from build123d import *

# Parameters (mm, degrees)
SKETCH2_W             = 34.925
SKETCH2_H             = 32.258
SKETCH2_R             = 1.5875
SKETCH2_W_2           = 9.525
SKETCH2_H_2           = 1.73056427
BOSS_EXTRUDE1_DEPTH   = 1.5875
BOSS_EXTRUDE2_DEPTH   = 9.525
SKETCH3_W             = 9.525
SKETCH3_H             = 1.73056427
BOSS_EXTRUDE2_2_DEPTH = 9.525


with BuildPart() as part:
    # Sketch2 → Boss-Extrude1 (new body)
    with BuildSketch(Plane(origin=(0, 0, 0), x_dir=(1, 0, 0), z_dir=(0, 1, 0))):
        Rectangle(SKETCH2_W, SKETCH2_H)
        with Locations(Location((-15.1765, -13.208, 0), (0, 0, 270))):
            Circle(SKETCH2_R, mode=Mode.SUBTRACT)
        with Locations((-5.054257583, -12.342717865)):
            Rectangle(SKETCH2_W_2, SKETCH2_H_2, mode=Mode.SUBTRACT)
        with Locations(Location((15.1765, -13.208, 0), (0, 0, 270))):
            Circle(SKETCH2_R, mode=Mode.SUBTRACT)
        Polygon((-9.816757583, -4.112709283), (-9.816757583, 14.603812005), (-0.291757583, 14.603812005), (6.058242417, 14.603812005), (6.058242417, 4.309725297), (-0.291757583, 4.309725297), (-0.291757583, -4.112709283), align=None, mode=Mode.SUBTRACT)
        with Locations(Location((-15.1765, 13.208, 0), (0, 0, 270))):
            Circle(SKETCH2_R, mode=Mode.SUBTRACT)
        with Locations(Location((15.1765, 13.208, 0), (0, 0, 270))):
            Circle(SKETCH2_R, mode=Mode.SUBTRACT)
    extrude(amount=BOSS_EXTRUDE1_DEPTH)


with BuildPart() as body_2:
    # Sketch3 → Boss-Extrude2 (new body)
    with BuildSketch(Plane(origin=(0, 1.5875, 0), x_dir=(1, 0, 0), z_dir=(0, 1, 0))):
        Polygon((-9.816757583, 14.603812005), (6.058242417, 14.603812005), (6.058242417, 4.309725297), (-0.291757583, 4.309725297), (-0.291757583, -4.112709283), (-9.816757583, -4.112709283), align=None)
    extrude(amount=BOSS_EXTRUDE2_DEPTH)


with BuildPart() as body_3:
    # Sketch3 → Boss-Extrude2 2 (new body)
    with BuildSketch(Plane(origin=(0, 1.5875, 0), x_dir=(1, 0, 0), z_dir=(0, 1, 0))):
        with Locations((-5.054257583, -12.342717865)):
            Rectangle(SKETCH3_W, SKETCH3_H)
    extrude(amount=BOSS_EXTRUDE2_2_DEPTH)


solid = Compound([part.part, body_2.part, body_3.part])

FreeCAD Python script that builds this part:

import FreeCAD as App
import Part
import Sketcher
from FreeCAD import Vector
Q = App.Units.Quantity

doc = App.newDocument("Part")
params = doc.addObject("Spreadsheet::Sheet", "Params")
for row, (alias, value) in enumerate([
    ("sketch1_diameter", "0.125 in"),
    ("sketch1_width", "0.25 in"),
    ("sketch1_height", "1.27 in"),
    ("sketch1_width2", "1.375 in"),
    ("sketch1_width3", "0.375 in"),
    ("pad1_length", "0.0625 in"),
    ("sketch2_width", "0.25 in"),
    ("sketch2_width2", "0.625 in"),
    ("pad2_length", "0.375 in"),
    ("sketch3_width", "0.375 in"),
    ("pad3_length", "0.375 in"),
], start=1):
    params.set(f"A{row}", alias)
    params.set(f"B{row}", "=" + value)
    params.setAlias(f"B{row}", alias)

body = doc.addObject("PartDesign::Body", "Body")

sketch1 = doc.addObject("Sketcher::SketchObject", "Sketch")
body.addObject(sketch1)
sketch1.AttachmentSupport = (doc.XZ_Plane, [""])
sketch1.MapMode = "FlatFace"
sketch1.addGeometry(Part.LineSegment(Vector(-17.5, -16.1, 0), Vector(-17.5, 16.1, 0)), False)
sketch1.addGeometry(Part.LineSegment(Vector(-17.5, 16.1, 0), Vector(17.5, 16.1, 0)), False)
sketch1.addGeometry(Part.LineSegment(Vector(17.5, 16.1, 0), Vector(17.5, -16.1, 0)), False)
sketch1.addGeometry(Part.LineSegment(Vector(17.5, -16.1, 0), Vector(-17.5, -16.1, 0)), False)
sketch1.addGeometry(Part.Circle(Vector(-15.2, 13.2, 0), Vector(0, 0, 1), 1.6), False)
sketch1.addGeometry(Part.LineSegment(Vector(-0.3, 13.2, 0), Vector(-9.8, 13.2, 0)), False)
sketch1.addGeometry(Part.LineSegment(Vector(-9.8, 13.2, 0), Vector(-9.8, 11.5, 0)), False)
sketch1.addGeometry(Part.LineSegment(Vector(-9.8, 11.5, 0), Vector(-0.3, 11.5, 0)), False)
sketch1.addGeometry(Part.LineSegment(Vector(-0.3, 11.5, 0), Vector(-0.3, 13.2, 0)), False)
sketch1.addGeometry(Part.Circle(Vector(15.2, 13.2, 0), Vector(0, 0, 1), 1.6), False)
sketch1.addGeometry(Part.LineSegment(Vector(-0.3, 4.1, 0), Vector(-9.8, 4.1, 0)), False)
sketch1.addGeometry(Part.LineSegment(Vector(-9.8, 4.1, 0), Vector(-9.8, -14.6, 0)), False)
sketch1.addGeometry(Part.LineSegment(Vector(-9.8, -14.6, 0), Vector(6.1, -14.6, 0)), False)
sketch1.addGeometry(Part.LineSegment(Vector(6.1, -14.6, 0), Vector(6.1, -4.3, 0)), False)
sketch1.addGeometry(Part.LineSegment(Vector(6.1, -4.3, 0), Vector(-0.3, -4.3, 0)), False)
sketch1.addGeometry(Part.LineSegment(Vector(-0.3, -4.3, 0), Vector(-0.3, 4.1, 0)), False)
sketch1.addGeometry(Part.Circle(Vector(-15.2, -13.2, 0), Vector(0, 0, 1), 1.6), False)
sketch1.addGeometry(Part.Circle(Vector(15.2, -13.2, 0), Vector(0, 0, 1), 1.6), False)
sketch1.addConstraint(Sketcher.Constraint("Coincident", 0, 2, 1, 1))
sketch1.addConstraint(Sketcher.Constraint("Coincident", 1, 2, 2, 1))
sketch1.addConstraint(Sketcher.Constraint("Coincident", 2, 2, 3, 1))
sketch1.addConstraint(Sketcher.Constraint("Coincident", 3, 2, 0, 1))
sketch1.addConstraint(Sketcher.Constraint("Coincident", 5, 2, 6, 1))
sketch1.addConstraint(Sketcher.Constraint("Coincident", 6, 2, 7, 1))
sketch1.addConstraint(Sketcher.Constraint("Coincident", 7, 2, 8, 1))
sketch1.addConstraint(Sketcher.Constraint("Coincident", 8, 2, 5, 1))
sketch1.addConstraint(Sketcher.Constraint("Coincident", 10, 2, 11, 1))
sketch1.addConstraint(Sketcher.Constraint("Coincident", 11, 2, 12, 1))
sketch1.addConstraint(Sketcher.Constraint("Coincident", 12, 2, 13, 1))
sketch1.addConstraint(Sketcher.Constraint("Coincident", 13, 2, 14, 1))
sketch1.addConstraint(Sketcher.Constraint("Coincident", 14, 2, 15, 1))
sketch1.addConstraint(Sketcher.Constraint("Coincident", 15, 2, 10, 1))
sketch1.addConstraint(Sketcher.Constraint("Vertical", 0))
sketch1.addConstraint(Sketcher.Constraint("Horizontal", 1))
sketch1.addConstraint(Sketcher.Constraint("Vertical", 2))
sketch1.addConstraint(Sketcher.Constraint("Horizontal", 3))
sketch1.addConstraint(Sketcher.Constraint("Horizontal", 5))
sketch1.addConstraint(Sketcher.Constraint("Vertical", 6))
sketch1.addConstraint(Sketcher.Constraint("Horizontal", 7))
sketch1.addConstraint(Sketcher.Constraint("Vertical", 8))
sketch1.addConstraint(Sketcher.Constraint("Horizontal", 10))
sketch1.addConstraint(Sketcher.Constraint("Vertical", 11))
sketch1.addConstraint(Sketcher.Constraint("Horizontal", 12))
sketch1.addConstraint(Sketcher.Constraint("Vertical", 13))
sketch1.addConstraint(Sketcher.Constraint("Horizontal", 14))
sketch1.addConstraint(Sketcher.Constraint("Vertical", 15))
sketch1.addConstraint(Sketcher.Constraint("Equal", 4, 9))
sketch1.addConstraint(Sketcher.Constraint("Equal", 9, 16))
sketch1.addConstraint(Sketcher.Constraint("Equal", 16, 17))
sketch1.addConstraint(Sketcher.Constraint("Symmetric", 9, 3, 16, 3, -1, 1))
sketch1.addConstraint(Sketcher.Constraint("Symmetric", 4, 3, 17, 3, -1, 1))
sketch1.addConstraint(Sketcher.Constraint("Symmetric", 0, 2, 2, 2, -1, 1))
sketch1.addConstraint(Sketcher.Constraint("Symmetric", 4, 3, 9, 3, -2))
sketch1.addConstraint(Sketcher.Constraint("Horizontal", 9, 3, 5, 2))
sketch1.addConstraint(Sketcher.Constraint("Vertical", 6, 2, 10, 2))
sketch1.addConstraint(Sketcher.Constraint("Vertical", 8, 2, 14, 2))
sketch1.addConstraint(Sketcher.Constraint("Diameter", 4, Q("0.125 in")))
sketch1.addConstraint(Sketcher.Constraint("DistanceX", 14, 2, 14, 1, Q("0.25 in")))
sketch1.addConstraint(Sketcher.Constraint("DistanceY", 0, 1, 0, 2, Q("1.27 in")))
sketch1.addConstraint(Sketcher.Constraint("DistanceX", 1, 1, 1, 2, Q("1.375 in")))
sketch1.addConstraint(Sketcher.Constraint("DistanceX", 5, 2, 5, 1, Q("0.375 in")))
sketch1.addConstraint(Sketcher.Constraint("DistanceY", -1, 1, 4, 3, Q("0.52 in")))
sketch1.addConstraint(Sketcher.Constraint("DistanceX", 0, 2, 4, 3, Q("0.09 in")))
sketch1.addConstraint(Sketcher.Constraint("DistanceY", 11, 2, 11, 1, Q("18.716521 mm")))
sketch1.addConstraint(Sketcher.Constraint("DistanceY", 6, 2, 6, 1, Q("1.730564 mm")))
sketch1.addConstraint(Sketcher.Constraint("DistanceY", 13, 1, 13, 2, Q("10.294087 mm")))
sketch1.addConstraint(Sketcher.Constraint("DistanceY", -1, 1, 10, 2, Q("4.112709 mm")))
sketch1.addConstraint(Sketcher.Constraint("DistanceX", 5, 2, -1, 1, Q("9.816758 mm")))
sketch1.setExpression("Constraints[38]", "Params.sketch1_diameter")
sketch1.setExpression("Constraints[39]", "Params.sketch1_width")
sketch1.setExpression("Constraints[40]", "Params.sketch1_height")
sketch1.setExpression("Constraints[41]", "Params.sketch1_width2")
sketch1.setExpression("Constraints[42]", "Params.sketch1_width3")
pad1 = doc.addObject("PartDesign::Pad", "Pad")
body.addObject(pad1)
pad1.Profile = sketch1
pad1.setExpression("Length", "Params.pad1_length")
pad1.Reversed = True
body2 = doc.addObject("PartDesign::Body", "Body001")

sketch2 = doc.addObject("Sketcher::SketchObject", "Sketch001")
body2.addObject(sketch2)
sketch2.AttachmentSupport = (doc.getObject("XZ_Plane001"), [""])
sketch2.MapMode = "FlatFace"
sketch2.AttachmentOffset = App.Placement(Vector(0, 0, -0.0625 * 25.4), App.Rotation())
sketch2.addGeometry(Part.LineSegment(Vector(6, -15, 0), Vector(-10, -15, 0)), False)
sketch2.addGeometry(Part.LineSegment(Vector(-10, -15, 0), Vector(-10, 4, 0)), False)
sketch2.addGeometry(Part.LineSegment(Vector(-10, 4, 0), Vector(0, 4, 0)), False)
sketch2.addGeometry(Part.LineSegment(Vector(0, 4, 0), Vector(0, -4, 0)), False)
sketch2.addGeometry(Part.LineSegment(Vector(0, -4, 0), Vector(6, -4, 0)), False)
sketch2.addGeometry(Part.LineSegment(Vector(6, -4, 0), Vector(6, -15, 0)), False)
sketch2.addConstraint(Sketcher.Constraint("Coincident", 0, 2, 1, 1))
sketch2.addConstraint(Sketcher.Constraint("Coincident", 1, 2, 2, 1))
sketch2.addConstraint(Sketcher.Constraint("Coincident", 2, 2, 3, 1))
sketch2.addConstraint(Sketcher.Constraint("Coincident", 3, 2, 4, 1))
sketch2.addConstraint(Sketcher.Constraint("Coincident", 4, 2, 5, 1))
sketch2.addConstraint(Sketcher.Constraint("Coincident", 5, 2, 0, 1))
sketch2.addConstraint(Sketcher.Constraint("Horizontal", 0))
sketch2.addConstraint(Sketcher.Constraint("Vertical", 1))
sketch2.addConstraint(Sketcher.Constraint("Horizontal", 2))
sketch2.addConstraint(Sketcher.Constraint("Vertical", 3))
sketch2.addConstraint(Sketcher.Constraint("Horizontal", 4))
sketch2.addConstraint(Sketcher.Constraint("Vertical", 5))
sketch2.addConstraint(Sketcher.Constraint("DistanceX", 4, 1, 4, 2, Q("0.25 in")))
sketch2.addConstraint(Sketcher.Constraint("DistanceX", 0, 2, 0, 1, Q("0.625 in")))
sketch2.addConstraint(Sketcher.Constraint("DistanceY", 1, 1, 1, 2, Q("18.716521 mm")))
sketch2.addConstraint(Sketcher.Constraint("DistanceY", 3, 2, 3, 1, Q("8.422435 mm")))
sketch2.addConstraint(Sketcher.Constraint("DistanceY", -1, 1, 1, 2, Q("4.112709 mm")))
sketch2.addConstraint(Sketcher.Constraint("DistanceX", 0, 2, -1, 1, Q("9.816758 mm")))
sketch2.setExpression("Constraints[12]", "Params.sketch2_width")
sketch2.setExpression("Constraints[13]", "Params.sketch2_width2")
pad2 = doc.addObject("PartDesign::Pad", "Pad001")
body2.addObject(pad2)
pad2.Profile = sketch2
pad2.setExpression("Length", "Params.pad2_length")
pad2.Reversed = True
body3 = doc.addObject("PartDesign::Body", "Body002")

sketch3 = doc.addObject("Sketcher::SketchObject", "Sketch002")
body3.addObject(sketch3)
sketch3.AttachmentSupport = (doc.getObject("XZ_Plane002"), [""])
sketch3.MapMode = "FlatFace"
sketch3.AttachmentOffset = App.Placement(Vector(0, 0, -0.0625 * 25.4), App.Rotation())
sketch3.addGeometry(Part.LineSegment(Vector(-9.8, 11.5, 0), Vector(-9.8, 13.2, 0)), False)
sketch3.addGeometry(Part.LineSegment(Vector(-9.8, 13.2, 0), Vector(-0.3, 13.2, 0)), False)
sketch3.addGeometry(Part.LineSegment(Vector(-0.3, 13.2, 0), Vector(-0.3, 11.5, 0)), False)
sketch3.addGeometry(Part.LineSegment(Vector(-0.3, 11.5, 0), Vector(-9.8, 11.5, 0)), False)
sketch3.addConstraint(Sketcher.Constraint("Coincident", 0, 2, 1, 1))
sketch3.addConstraint(Sketcher.Constraint("Coincident", 1, 2, 2, 1))
sketch3.addConstraint(Sketcher.Constraint("Coincident", 2, 2, 3, 1))
sketch3.addConstraint(Sketcher.Constraint("Coincident", 3, 2, 0, 1))
sketch3.addConstraint(Sketcher.Constraint("Vertical", 0))
sketch3.addConstraint(Sketcher.Constraint("Horizontal", 1))
sketch3.addConstraint(Sketcher.Constraint("Vertical", 2))
sketch3.addConstraint(Sketcher.Constraint("Horizontal", 3))
sketch3.addConstraint(Sketcher.Constraint("DistanceX", 1, 1, 1, 2, Q("0.375 in")))
sketch3.addConstraint(Sketcher.Constraint("DistanceY", -1, 1, 0, 2, Q("0.52 in")))
sketch3.addConstraint(Sketcher.Constraint("DistanceY", 0, 1, 0, 2, Q("1.730564 mm")))
sketch3.addConstraint(Sketcher.Constraint("DistanceX", 0, 2, -1, 1, Q("9.816758 mm")))
sketch3.setExpression("Constraints[8]", "Params.sketch3_width")
pad3 = doc.addObject("PartDesign::Pad", "Pad002")
body3.addObject(pad3)
pad3.Profile = sketch3
pad3.setExpression("Length", "Params.pad3_length")
pad3.Reversed = True

doc.recompute()
